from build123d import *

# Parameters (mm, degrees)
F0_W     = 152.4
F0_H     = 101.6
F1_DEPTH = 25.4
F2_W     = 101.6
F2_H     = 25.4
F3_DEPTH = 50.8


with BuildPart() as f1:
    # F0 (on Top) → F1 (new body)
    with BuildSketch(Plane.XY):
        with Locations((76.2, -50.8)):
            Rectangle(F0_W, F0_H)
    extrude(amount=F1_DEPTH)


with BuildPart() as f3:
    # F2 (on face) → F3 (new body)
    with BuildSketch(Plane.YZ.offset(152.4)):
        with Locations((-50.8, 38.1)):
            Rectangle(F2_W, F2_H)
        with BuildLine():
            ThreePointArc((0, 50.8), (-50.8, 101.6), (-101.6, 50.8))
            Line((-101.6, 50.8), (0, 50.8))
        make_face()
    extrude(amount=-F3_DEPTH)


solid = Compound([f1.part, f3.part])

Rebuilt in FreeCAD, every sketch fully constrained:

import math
import FreeCAD as App
import Part
import Sketcher
Q = App.Units.Quantity

doc = App.newDocument("Part")
body = doc.addObject("PartDesign::Body", "Body")

# Sketch on XY plane
sketch1 = doc.addObject("Sketcher::SketchObject", "Sketch")
body.addObject(sketch1)
sketch1.AttachmentSupport = (doc.XY_Plane, [""])
sketch1.MapMode = "FlatFace"
sketch1.addGeometry(Part.LineSegment(App.Vector(0, 0, 0), App.Vector(0, -102, 0)), False)
sketch1.addGeometry(Part.LineSegment(App.Vector(0, -102, 0), App.Vector(152, -102, 0)), False)
sketch1.addGeometry(Part.LineSegment(App.Vector(152, -102, 0), App.Vector(152, 0, 0)), False)
sketch1.addGeometry(Part.LineSegment(App.Vector(152, 0, 0), App.Vector(0, 0, 0)), False)
sketch1.addConstraint(Sketcher.Constraint("Coincident", 0, 2, 1, 1))
sketch1.addConstraint(Sketcher.Constraint("Coincident", 1, 2, 2, 1))
sketch1.addConstraint(Sketcher.Constraint("Coincident", 2, 2, 3, 1))
sketch1.addConstraint(Sketcher.Constraint("Coincident", 3, 2, 0, 1))
sketch1.addConstraint(Sketcher.Constraint("Vertical", 0))
sketch1.addConstraint(Sketcher.Constraint("Horizontal", 1))
sketch1.addConstraint(Sketcher.Constraint("Vertical", 2))
sketch1.addConstraint(Sketcher.Constraint("Horizontal", 3))
sketch1.addConstraint(Sketcher.Constraint("Coincident", 3, 2, -1, 1))
sketch1.addConstraint(Sketcher.Constraint("DistanceX", 1, 1, 1, 2, Q("6 in")))
sketch1.addConstraint(Sketcher.Constraint("DistanceY", 0, 2, 0, 1, Q("4 in")))
pad1 = doc.addObject("PartDesign::Pad", "Pad")
body.addObject(pad1)
pad1.Profile = sketch1
pad1.Length = Q("1 in")
body2 = doc.addObject("PartDesign::Body", "Body001")

# Sketch on YZ plane
sketch2 = doc.addObject("Sketcher::SketchObject", "Sketch001")
body2.addObject(sketch2)
sketch2.AttachmentSupport = (doc.getObject("YZ_Plane001"), [""])
sketch2.MapMode = "FlatFace"
sketch2.AttachmentOffset = App.Placement(App.Vector(0, 0, 6 * 25.4), App.Rotation())
sketch2.addGeometry(Part.LineSegment(App.Vector(-102, 51, 0), App.Vector(-102, 25, 0)), False)
sketch2.addGeometry(Part.LineSegment(App.Vector(-102, 25, 0), App.Vector(0, 25, 0)), False)
sketch2.addGeometry(Part.LineSegment(App.Vector(0, 25, 0), App.Vector(0, 51, 0)), False)
sketch2.addGeometry(Part.ArcOfCircle(Part.Circle(App.Vector(-51, 51, 0), App.Vector(0, 0, 1), 51), math.radians(0), math.radians(180)), False)
sketch2.addConstraint(Sketcher.Constraint("Coincident", 0, 2, 1, 1))
sketch2.addConstraint(Sketcher.Constraint("Coincident", 1, 2, 2, 1))
sketch2.addConstraint(Sketcher.Constraint("Tangent", 2, 2, 3, 1))
sketch2.addConstraint(Sketcher.Constraint("Tangent", 3, 2, 0, 1))
sketch2.addConstraint(Sketcher.Constraint("Vertical", 0))
sketch2.addConstraint(Sketcher.Constraint("Horizontal", 1))
sketch2.addConstraint(Sketcher.Constraint("Vertical", 2))
sketch2.addConstraint(Sketcher.Constraint("PointOnObject", 1, 2, -2))
sketch2.addConstraint(Sketcher.Constraint("Radius", 3, Q("2 in")))
sketch2.addConstraint(Sketcher.Constraint("DistanceY", 0, 2, 0, 1, Q("1 in")))
sketch2.addConstraint(Sketcher.Constraint("DistanceY", -1, 1, 3, 3, Q("2 in")))
pad2 = doc.addObject("PartDesign::Pad", "Pad001")
body2.addObject(pad2)
pad2.Profile = sketch2
pad2.Length = Q("2 in")
pad2.Reversed = True

doc.recompute()
